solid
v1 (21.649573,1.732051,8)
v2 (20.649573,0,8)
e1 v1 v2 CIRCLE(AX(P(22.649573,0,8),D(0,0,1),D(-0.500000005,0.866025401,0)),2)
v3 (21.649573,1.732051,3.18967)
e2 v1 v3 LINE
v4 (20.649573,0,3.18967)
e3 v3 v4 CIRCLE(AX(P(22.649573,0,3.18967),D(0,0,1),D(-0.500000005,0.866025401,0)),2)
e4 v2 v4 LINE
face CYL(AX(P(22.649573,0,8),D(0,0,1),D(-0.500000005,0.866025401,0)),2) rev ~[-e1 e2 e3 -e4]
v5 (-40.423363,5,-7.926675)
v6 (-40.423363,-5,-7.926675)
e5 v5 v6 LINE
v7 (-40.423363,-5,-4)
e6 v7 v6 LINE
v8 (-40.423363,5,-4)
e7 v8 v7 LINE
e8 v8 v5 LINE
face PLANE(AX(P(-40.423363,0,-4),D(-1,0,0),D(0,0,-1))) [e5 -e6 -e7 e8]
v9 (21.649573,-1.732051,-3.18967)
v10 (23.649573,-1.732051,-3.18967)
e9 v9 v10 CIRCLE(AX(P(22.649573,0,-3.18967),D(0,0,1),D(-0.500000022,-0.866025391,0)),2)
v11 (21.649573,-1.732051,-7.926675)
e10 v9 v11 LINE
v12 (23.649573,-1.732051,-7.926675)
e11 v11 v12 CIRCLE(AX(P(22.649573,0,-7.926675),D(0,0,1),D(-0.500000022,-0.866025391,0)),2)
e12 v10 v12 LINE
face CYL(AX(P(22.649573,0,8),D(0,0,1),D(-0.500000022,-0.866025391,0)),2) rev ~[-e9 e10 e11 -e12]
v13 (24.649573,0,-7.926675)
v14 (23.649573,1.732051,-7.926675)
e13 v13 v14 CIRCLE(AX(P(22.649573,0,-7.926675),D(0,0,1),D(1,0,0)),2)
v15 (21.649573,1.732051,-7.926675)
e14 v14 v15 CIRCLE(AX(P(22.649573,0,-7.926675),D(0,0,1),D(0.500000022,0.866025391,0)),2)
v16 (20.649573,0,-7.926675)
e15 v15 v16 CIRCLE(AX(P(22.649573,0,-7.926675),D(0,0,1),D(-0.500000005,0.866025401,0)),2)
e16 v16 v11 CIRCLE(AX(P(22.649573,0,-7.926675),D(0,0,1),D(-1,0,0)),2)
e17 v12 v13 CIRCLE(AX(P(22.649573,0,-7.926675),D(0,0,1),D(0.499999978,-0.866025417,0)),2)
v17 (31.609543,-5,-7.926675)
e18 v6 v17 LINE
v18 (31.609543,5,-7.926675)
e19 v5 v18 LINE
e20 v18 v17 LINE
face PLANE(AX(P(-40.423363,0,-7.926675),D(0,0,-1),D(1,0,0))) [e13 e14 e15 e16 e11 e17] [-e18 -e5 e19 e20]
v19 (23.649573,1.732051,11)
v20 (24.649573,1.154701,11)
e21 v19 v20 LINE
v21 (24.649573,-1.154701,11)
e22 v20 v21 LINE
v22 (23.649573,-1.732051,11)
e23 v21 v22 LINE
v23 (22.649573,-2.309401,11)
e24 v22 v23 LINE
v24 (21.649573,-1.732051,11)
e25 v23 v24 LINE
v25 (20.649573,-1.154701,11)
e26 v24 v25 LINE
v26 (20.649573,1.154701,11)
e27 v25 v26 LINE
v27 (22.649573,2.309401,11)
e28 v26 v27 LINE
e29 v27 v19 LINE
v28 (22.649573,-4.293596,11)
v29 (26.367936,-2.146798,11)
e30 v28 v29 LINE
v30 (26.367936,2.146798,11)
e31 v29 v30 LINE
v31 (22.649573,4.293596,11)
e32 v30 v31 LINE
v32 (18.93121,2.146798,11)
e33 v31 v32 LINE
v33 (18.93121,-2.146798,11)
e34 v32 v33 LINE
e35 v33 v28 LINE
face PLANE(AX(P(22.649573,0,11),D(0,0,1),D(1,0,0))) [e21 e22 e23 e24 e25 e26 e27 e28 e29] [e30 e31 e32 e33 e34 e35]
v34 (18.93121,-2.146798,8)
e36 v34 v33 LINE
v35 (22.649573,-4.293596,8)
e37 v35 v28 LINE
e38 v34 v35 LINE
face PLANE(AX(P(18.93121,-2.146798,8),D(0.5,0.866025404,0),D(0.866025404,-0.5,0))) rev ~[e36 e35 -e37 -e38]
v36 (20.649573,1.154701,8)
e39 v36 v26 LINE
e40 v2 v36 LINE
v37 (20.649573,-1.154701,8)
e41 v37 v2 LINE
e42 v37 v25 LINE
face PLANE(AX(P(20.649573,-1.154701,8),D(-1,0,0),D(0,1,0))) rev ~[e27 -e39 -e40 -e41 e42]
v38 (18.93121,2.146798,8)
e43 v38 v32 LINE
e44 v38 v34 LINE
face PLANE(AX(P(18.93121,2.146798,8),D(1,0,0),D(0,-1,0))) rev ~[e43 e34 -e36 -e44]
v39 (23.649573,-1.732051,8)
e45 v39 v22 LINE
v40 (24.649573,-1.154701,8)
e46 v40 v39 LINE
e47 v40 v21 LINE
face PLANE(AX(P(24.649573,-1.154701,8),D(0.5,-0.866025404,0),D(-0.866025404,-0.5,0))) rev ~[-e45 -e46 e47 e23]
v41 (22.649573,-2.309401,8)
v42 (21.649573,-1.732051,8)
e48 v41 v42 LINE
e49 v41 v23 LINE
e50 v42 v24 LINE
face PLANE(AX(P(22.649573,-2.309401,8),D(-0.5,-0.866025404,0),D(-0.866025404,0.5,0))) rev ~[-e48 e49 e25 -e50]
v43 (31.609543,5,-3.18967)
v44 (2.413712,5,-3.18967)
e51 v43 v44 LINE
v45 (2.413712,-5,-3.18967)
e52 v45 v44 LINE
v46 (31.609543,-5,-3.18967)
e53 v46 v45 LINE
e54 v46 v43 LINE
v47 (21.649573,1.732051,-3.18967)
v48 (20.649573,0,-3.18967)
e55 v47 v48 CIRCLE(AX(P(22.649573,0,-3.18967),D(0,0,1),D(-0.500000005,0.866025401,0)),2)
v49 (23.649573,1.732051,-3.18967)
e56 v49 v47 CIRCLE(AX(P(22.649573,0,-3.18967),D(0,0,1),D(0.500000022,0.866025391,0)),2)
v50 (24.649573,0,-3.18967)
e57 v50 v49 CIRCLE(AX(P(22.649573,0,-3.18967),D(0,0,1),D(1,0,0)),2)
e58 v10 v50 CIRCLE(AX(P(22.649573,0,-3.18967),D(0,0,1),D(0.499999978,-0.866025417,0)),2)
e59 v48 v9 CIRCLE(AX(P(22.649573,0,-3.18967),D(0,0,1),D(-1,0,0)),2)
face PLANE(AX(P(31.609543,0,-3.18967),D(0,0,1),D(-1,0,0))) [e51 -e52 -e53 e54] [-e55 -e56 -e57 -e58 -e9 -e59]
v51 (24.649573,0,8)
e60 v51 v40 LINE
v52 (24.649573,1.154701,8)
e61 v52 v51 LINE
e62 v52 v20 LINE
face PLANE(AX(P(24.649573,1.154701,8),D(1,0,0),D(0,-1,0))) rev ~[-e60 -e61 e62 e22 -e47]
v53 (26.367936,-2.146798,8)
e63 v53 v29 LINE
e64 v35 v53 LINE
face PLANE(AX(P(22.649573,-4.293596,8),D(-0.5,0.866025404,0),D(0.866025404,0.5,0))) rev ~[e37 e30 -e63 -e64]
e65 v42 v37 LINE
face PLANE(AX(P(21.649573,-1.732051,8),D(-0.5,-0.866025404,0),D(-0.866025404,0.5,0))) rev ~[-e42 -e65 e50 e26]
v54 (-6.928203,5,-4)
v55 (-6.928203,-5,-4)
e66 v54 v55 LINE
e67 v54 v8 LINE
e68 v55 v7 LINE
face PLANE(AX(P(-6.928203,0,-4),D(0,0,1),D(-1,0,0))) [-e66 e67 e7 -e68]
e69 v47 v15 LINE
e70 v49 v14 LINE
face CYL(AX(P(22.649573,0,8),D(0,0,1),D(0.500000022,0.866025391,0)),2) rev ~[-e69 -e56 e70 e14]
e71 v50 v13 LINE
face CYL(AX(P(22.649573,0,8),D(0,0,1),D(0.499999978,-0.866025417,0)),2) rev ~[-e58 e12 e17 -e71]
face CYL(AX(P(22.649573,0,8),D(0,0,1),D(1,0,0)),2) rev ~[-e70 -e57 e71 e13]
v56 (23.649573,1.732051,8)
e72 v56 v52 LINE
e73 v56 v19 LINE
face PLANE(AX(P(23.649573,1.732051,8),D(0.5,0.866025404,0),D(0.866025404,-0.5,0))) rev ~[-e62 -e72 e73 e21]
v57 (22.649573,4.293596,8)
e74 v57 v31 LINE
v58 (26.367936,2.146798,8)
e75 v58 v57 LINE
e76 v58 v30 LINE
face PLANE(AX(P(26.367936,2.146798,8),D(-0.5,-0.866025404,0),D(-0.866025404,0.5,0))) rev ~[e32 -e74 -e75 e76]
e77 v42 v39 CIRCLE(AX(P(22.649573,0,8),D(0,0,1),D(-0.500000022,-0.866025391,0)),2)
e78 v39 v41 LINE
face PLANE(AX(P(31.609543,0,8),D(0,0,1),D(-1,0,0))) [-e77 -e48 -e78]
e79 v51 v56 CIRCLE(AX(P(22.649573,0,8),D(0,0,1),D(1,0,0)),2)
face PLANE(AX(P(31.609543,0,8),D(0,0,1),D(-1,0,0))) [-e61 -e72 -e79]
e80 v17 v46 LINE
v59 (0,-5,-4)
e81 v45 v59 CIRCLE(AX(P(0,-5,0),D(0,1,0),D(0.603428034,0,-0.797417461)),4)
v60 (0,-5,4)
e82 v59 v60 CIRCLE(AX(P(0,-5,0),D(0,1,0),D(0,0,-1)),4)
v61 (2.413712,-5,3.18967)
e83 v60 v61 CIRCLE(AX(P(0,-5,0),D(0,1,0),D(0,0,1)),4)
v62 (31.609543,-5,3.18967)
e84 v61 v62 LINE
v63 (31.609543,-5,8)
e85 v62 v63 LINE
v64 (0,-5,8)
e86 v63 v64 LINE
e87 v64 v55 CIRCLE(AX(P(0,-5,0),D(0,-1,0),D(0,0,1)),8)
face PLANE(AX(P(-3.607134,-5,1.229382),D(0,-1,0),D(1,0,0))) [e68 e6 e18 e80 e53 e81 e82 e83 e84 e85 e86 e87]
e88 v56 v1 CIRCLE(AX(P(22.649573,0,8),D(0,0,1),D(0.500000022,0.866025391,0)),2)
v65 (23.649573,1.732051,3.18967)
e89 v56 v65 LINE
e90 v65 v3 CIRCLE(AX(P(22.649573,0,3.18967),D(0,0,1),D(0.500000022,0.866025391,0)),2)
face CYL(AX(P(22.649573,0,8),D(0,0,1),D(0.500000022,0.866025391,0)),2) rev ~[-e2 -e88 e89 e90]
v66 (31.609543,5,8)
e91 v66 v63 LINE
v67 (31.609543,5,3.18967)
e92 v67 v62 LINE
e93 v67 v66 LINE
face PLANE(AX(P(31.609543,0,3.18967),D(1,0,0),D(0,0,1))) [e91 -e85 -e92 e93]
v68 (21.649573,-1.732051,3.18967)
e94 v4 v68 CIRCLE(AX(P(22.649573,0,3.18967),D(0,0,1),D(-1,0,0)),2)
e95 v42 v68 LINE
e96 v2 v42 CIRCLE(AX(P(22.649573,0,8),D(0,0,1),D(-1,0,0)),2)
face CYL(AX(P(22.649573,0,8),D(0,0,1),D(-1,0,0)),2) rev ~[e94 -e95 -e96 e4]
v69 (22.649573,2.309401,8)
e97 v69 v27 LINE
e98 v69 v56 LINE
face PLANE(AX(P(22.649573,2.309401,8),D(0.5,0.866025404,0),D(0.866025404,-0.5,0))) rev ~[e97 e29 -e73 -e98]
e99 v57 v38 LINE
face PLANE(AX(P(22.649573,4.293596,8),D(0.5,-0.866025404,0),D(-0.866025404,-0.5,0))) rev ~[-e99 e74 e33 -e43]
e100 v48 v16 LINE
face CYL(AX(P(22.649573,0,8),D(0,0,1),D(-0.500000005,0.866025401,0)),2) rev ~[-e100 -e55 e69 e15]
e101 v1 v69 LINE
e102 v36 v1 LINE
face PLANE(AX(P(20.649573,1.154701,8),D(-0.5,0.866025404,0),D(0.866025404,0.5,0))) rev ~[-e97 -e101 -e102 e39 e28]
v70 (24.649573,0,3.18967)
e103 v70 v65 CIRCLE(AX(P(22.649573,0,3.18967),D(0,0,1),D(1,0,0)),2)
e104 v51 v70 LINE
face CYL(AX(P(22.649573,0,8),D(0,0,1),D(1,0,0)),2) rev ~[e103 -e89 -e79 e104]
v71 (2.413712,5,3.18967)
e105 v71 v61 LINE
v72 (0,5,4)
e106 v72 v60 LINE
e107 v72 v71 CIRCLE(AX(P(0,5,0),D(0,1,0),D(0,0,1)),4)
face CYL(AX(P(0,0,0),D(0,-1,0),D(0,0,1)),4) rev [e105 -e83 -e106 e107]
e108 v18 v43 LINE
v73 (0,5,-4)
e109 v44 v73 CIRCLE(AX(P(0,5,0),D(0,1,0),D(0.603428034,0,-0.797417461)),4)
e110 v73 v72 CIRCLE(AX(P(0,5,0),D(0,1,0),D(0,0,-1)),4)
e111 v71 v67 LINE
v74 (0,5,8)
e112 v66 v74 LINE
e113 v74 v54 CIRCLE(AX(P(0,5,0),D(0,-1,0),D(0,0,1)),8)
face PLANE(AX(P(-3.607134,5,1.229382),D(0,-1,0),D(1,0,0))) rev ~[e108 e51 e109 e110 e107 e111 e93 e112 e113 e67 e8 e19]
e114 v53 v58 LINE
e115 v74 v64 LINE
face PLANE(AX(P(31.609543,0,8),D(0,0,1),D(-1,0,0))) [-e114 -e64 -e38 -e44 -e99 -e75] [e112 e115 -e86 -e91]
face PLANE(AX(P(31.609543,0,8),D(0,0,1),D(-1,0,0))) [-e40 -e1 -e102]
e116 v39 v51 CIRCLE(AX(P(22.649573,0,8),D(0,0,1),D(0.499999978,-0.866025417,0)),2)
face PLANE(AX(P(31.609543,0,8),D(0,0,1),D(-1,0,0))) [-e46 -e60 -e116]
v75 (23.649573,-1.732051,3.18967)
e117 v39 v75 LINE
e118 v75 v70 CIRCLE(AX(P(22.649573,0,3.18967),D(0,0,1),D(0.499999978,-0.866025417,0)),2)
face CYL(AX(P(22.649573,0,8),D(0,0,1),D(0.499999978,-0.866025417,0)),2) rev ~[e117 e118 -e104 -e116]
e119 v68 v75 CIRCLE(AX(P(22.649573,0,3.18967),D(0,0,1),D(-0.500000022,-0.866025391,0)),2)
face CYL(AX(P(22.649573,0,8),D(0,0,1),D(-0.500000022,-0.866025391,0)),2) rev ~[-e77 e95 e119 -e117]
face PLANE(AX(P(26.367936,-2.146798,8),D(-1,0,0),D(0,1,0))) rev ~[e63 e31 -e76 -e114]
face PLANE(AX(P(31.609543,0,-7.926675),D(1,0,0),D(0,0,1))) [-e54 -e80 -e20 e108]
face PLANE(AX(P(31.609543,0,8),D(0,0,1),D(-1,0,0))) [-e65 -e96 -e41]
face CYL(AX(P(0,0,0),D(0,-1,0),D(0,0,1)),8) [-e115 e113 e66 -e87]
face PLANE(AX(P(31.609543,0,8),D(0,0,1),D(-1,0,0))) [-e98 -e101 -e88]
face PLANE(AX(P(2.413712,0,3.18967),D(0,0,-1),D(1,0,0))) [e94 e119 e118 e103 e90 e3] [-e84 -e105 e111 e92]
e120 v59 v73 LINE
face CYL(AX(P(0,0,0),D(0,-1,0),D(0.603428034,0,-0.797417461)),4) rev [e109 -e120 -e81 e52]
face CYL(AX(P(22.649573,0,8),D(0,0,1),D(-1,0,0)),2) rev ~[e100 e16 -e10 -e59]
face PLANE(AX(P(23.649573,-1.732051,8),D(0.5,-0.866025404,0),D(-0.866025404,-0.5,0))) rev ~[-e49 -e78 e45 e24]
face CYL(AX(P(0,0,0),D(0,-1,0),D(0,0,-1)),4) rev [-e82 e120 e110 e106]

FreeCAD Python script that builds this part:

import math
import FreeCAD as App
import Part
import Sketcher
Q = App.Units.Quantity

doc = App.newDocument("Part")
body = doc.addObject("PartDesign::Body", "Body")

sketch1 = body.newObject("Sketcher::SketchObject", "Sketch")
sketch1.AttachmentSupport = (doc.getObject("XZ_Plane"), [""])
sketch1.MapMode = "FlatFace"
sketch1.addGeometry(Part.ArcOfCircle(Part.Circle(App.Vector(0, 0, 0), App.Vector(0, 0, 1), 4), math.radians(90), math.radians(270)), False)
sketch1.addGeometry(Part.ArcOfCircle(Part.Circle(App.Vector(0, 0, 0), App.Vector(0, 0, 1), 4), math.radians(53), math.radians(90)), False)
sketch1.addGeometry(Part.LineSegment(App.Vector(2.4, 3.2, 0), App.Vector(31.6, 3.2, 0)), False)
sketch1.addGeometry(Part.LineSegment(App.Vector(31.6, 3.2, 0), App.Vector(31.6, 8, 0)), False)
sketch1.addGeometry(Part.LineSegment(App.Vector(31.6, 8, 0), App.Vector(0, 8, 0)), False)
sketch1.addGeometry(Part.ArcOfCircle(Part.Circle(App.Vector(0, 0, 0), App.Vector(0, 0, 1), 8), math.radians(90), math.radians(210)), False)
sketch1.addGeometry(Part.LineSegment(App.Vector(-6.9, -4, 0), App.Vector(-40.4, -4, 0)), False)
sketch1.addGeometry(Part.LineSegment(App.Vector(-40.4, -4, 0), App.Vector(-40.4, -7.9, 0)), False)
sketch1.addGeometry(Part.LineSegment(App.Vector(-40.4, -7.9, 0), App.Vector(31.6, -7.9, 0)), False)
sketch1.addGeometry(Part.LineSegment(App.Vector(31.6, -7.9, 0), App.Vector(31.6, -3.2, 0)), False)
sketch1.addGeometry(Part.LineSegment(App.Vector(31.6, -3.2, 0), App.Vector(2.4, -3.2, 0)), False)
sketch1.addGeometry(Part.ArcOfCircle(Part.Circle(App.Vector(0, 0, 0), App.Vector(0, 0, 1), 4), math.radians(-90), math.radians(-53)), False)
sketch1.addConstraint(Sketcher.Constraint("Tangent", 0, 1, 1, 2))
sketch1.addConstraint(Sketcher.Constraint("Coincident", 1, 1, 2, 1))
sketch1.addConstraint(Sketcher.Constraint("Coincident", 2, 2, 3, 1))
sketch1.addConstraint(Sketcher.Constraint("Coincident", 3, 2, 4, 1))
sketch1.addConstraint(Sketcher.Constraint("Tangent", 4, 2, 5, 1))
sketch1.addConstraint(Sketcher.Constraint("Coincident", 5, 2, 6, 1))
sketch1.addConstraint(Sketcher.Constraint("Coincident", 6, 2, 7, 1))
sketch1.addConstraint(Sketcher.Constraint("Coincident", 7, 2, 8, 1))
sketch1.addConstraint(Sketcher.Constraint("Coincident", 8, 2, 9, 1))
sketch1.addConstraint(Sketcher.Constraint("Coincident", 9, 2, 10, 1))
sketch1.addConstraint(Sketcher.Constraint("Coincident", 10, 2, 11, 2))
sketch1.addConstraint(Sketcher.Constraint("Tangent", 11, 1, 0, 2))
sketch1.addConstraint(Sketcher.Constraint("Horizontal", 2))
sketch1.addConstraint(Sketcher.Constraint("Vertical", 3))
sketch1.addConstraint(Sketcher.Constraint("Horizontal", 4))
sketch1.addConstraint(Sketcher.Constraint("Horizontal", 6))
sketch1.addConstraint(Sketcher.Constraint("Vertical", 7))
sketch1.addConstraint(Sketcher.Constraint("Horizontal", 8))
sketch1.addConstraint(Sketcher.Constraint("Vertical", 9))
sketch1.addConstraint(Sketcher.Constraint("Horizontal", 10))
sketch1.addConstraint(Sketcher.Constraint("Coincident", 0, 3, -1, 1))
sketch1.addConstraint(Sketcher.Constraint("Coincident", 5, 3, -1, 1))
sketch1.addConstraint(Sketcher.Constraint("Equal", 0, 1))
sketch1.addConstraint(Sketcher.Constraint("Equal", 1, 11))
sketch1.addConstraint(Sketcher.Constraint("Symmetric", 2, 2, 9, 2, -1))
sketch1.addConstraint(Sketcher.Constraint("PointOnObject", 0, 1, -2))
sketch1.addConstraint(Sketcher.Constraint("PointOnObject", 11, 1, -2))
sketch1.addConstraint(Sketcher.Constraint("Horizontal", 6, 2, 11, 1))
sketch1.addConstraint(Sketcher.Constraint("Radius", 0, 4.0))
sketch1.addConstraint(Sketcher.Constraint("Radius", 5, 8.0))
sketch1.addConstraint(Sketcher.Constraint("DistanceX", 2, 1, 2, 2, 29.195831))
sketch1.addConstraint(Sketcher.Constraint("DistanceX", 6, 2, 6, 1, 33.49516))
sketch1.addConstraint(Sketcher.Constraint("DistanceY", 3, 1, 3, 2, 4.81033))
sketch1.addConstraint(Sketcher.Constraint("DistanceY", 7, 2, 7, 1, 3.926675))
pad1 = body.newObject("PartDesign::Pad", "Pad")
pad1.Profile = sketch1
pad1.Length = 10
pad1.Midplane = True

sketch2 = body.newObject("Sketcher::SketchObject", "Sketch001")
sketch2.AttachmentSupport = (doc.getObject("XY_Plane"), [""])
sketch2.MapMode = "FlatFace"
sketch2.AttachmentOffset = App.Placement(App.Vector(0, 0, 8), App.Rotation())
sketch2.addGeometry(Part.LineSegment(App.Vector(26.4, -2.1, 0), App.Vector(26.4, 2.1, 0)), False)
sketch2.addGeometry(Part.LineSegment(App.Vector(26.4, 2.1, 0), App.Vector(22.6, 4.3, 0)), False)
sketch2.addGeometry(Part.LineSegment(App.Vector(22.6, 4.3, 0), App.Vector(18.9, 2.1, 0)), False)
sketch2.addGeometry(Part.LineSegment(App.Vector(18.9, 2.1, 0), App.Vector(18.9, -2.1, 0)), False)
sketch2.addGeometry(Part.LineSegment(App.Vector(18.9, -2.1, 0), App.Vector(22.6, -4.3, 0)), False)
sketch2.addGeometry(Part.LineSegment(App.Vector(22.6, -4.3, 0), App.Vector(26.4, -2.1, 0)), False)
sketch2.addGeometry(Part.LineSegment(App.Vector(22.6, 2.3, 0), App.Vector(23.6, 1.7, 0)), False)
sketch2.addGeometry(Part.LineSegment(App.Vector(23.6, 1.7, 0), App.Vector(24.6, 1.2, 0)), False)
sketch2.addGeometry(Part.LineSegment(App.Vector(24.6, 1.2, 0), App.Vector(24.6, -1.2, 0)), False)
sketch2.addGeometry(Part.LineSegment(App.Vector(24.6, -1.2, 0), App.Vector(23.6, -1.7, 0)), False)
sketch2.addGeometry(Part.LineSegment(App.Vector(23.6, -1.7, 0), App.Vector(22.6, -2.3, 0)), False)
sketch2.addGeometry(Part.LineSegment(App.Vector(22.6, -2.3, 0), App.Vector(21.6, -1.7, 0)), False)
sketch2.addGeometry(Part.LineSegment(App.Vector(21.6, -1.7, 0), App.Vector(20.6, -1.2, 0)), False)
sketch2.addGeometry(Part.LineSegment(App.Vector(20.6, -1.2, 0), App.Vector(20.6, 1.2, 0)), False)
sketch2.addGeometry(Part.LineSegment(App.Vector(20.6, 1.2, 0), App.Vector(22.6, 2.3, 0)), False)
sketch2.addConstraint(Sketcher.Constraint("Coincident", 0, 2, 1, 1))
sketch2.addConstraint(Sketcher.Constraint("Coincident", 1, 2, 2, 1))
sketch2.addConstraint(Sketcher.Constraint("Coincident", 2, 2, 3, 1))
sketch2.addConstraint(Sketcher.Constraint("Coincident", 3, 2, 4, 1))
sketch2.addConstraint(Sketcher.Constraint("Coincident", 4, 2, 5, 1))
sketch2.addConstraint(Sketcher.Constraint("Coincident", 5, 2, 0, 1))
sketch2.addConstraint(Sketcher.Constraint("Coincident", 6, 2, 7, 1))
sketch2.addConstraint(Sketcher.Constraint("Coincident", 7, 2, 8, 1))
sketch2.addConstraint(Sketcher.Constraint("Coincident", 8, 2, 9, 1))
sketch2.addConstraint(Sketcher.Constraint("Coincident", 9, 2, 10, 1))
sketch2.addConstraint(Sketcher.Constraint("Coincident", 10, 2, 11, 1))
sketch2.addConstraint(Sketcher.Constraint("Coincident", 11, 2, 12, 1))
sketch2.addConstraint(Sketcher.Constraint("Coincident", 12, 2, 13, 1))
sketch2.addConstraint(Sketcher.Constraint("Coincident", 13, 2, 14, 1))
sketch2.addConstraint(Sketcher.Constraint("Coincident", 14, 2, 6, 1))
sketch2.addConstraint(Sketcher.Constraint("Vertical", 0))
sketch2.addConstraint(Sketcher.Constraint("Vertical", 3))
sketch2.addConstraint(Sketcher.Constraint("Vertical", 8))
sketch2.addConstraint(Sketcher.Constraint("Vertical", 13))
sketch2.addConstraint(Sketcher.Constraint("Symmetric", 1, 2, 4, 2, -1))
sketch2.addConstraint(Sketcher.Constraint("Symmetric", 6, 2, 9, 2, -1))
sketch2.addConstraint(Sketcher.Constraint("Symmetric", 10, 2, 14, 2, -1))
sketch2.addConstraint(Sketcher.Constraint("Parallel", 1, 4))
sketch2.addConstraint(Sketcher.Constraint("Parallel", 2, 5))
sketch2.addConstraint(Sketcher.Constraint("Parallel", 4, 6))
sketch2.addConstraint(Sketcher.Constraint("Parallel", 6, 7))
sketch2.addConstraint(Sketcher.Constraint("Parallel", 5, 9))
sketch2.addConstraint(Sketcher.Constraint("Parallel", 9, 10))
sketch2.addConstraint(Sketcher.Constraint("Parallel", 7, 11))
sketch2.addConstraint(Sketcher.Constraint("Parallel", 11, 12))
sketch2.addConstraint(Sketcher.Constraint("Parallel", 10, 14))
sketch2.addConstraint(Sketcher.Constraint("Horizontal", 0, 2, 2, 2))
sketch2.addConstraint(Sketcher.Constraint("Horizontal", 9, 2, 11, 2))
sketch2.addConstraint(Sketcher.Constraint("Horizontal", 8, 2, 12, 2))
sketch2.addConstraint(Sketcher.Constraint("Vertical", 4, 2, 10, 2))
sketch2.addConstraint(Sketcher.Constraint("Equal", 6, 7))
sketch2.addConstraint(Sketcher.Constraint("Angle", 1, Q("150 deg")))
sketch2.addConstraint(Sketcher.Constraint("DistanceX", 1, 2, 6, 2, 1.0))
sketch2.addConstraint(Sketcher.Constraint("DistanceY", 8, 2, 8, 1, 2.309401))
sketch2.addConstraint(Sketcher.Constraint("DistanceY", 5, 2, 7, 2, 3.301498))
sketch2.addConstraint(Sketcher.Constraint("DistanceX", -1, 1, 2, 2, 18.93121))
sketch2.addConstraint(Sketcher.Constraint("DistanceY", 4, 2, 1, 2, 8.587192))
pad2 = body.newObject("PartDesign::Pad", "Pad001")
pad2.Profile = sketch2
pad2.Length = 3

sketch3 = body.newObject("Sketcher::SketchObject", "Sketch002")
sketch3.AttachmentSupport = (doc.getObject("XY_Plane"), [""])
sketch3.MapMode = "FlatFace"
sketch3.AttachmentOffset = App.Placement(App.Vector(0, 0, 8), App.Rotation())
sketch3.addGeometry(Part.ArcOfCircle(Part.Circle(App.Vector(22.6, 0, 0), App.Vector(0, 0, 1), 2), math.radians(-60), math.radians(0)), False)
sketch3.addGeometry(Part.ArcOfCircle(Part.Circle(App.Vector(22.6, 0, 0), App.Vector(0, 0, 1), 2), math.radians(0), math.radians(60)), False)
sketch3.addGeometry(Part.ArcOfCircle(Part.Circle(App.Vector(22.6, 0, 0), App.Vector(0, 0, 1), 2), math.radians(60), math.radians(120)), False)
sketch3.addGeometry(Part.ArcOfCircle(Part.Circle(App.Vector(22.6, 0, 0), App.Vector(0, 0, 1), 2), math.radians(120), math.radians(180)), False)
sketch3.addGeometry(Part.ArcOfCircle(Part.Circle(App.Vector(22.6, 0, 0), App.Vector(0, 0, 1), 2), math.radians(180), math.radians(240)), False)
sketch3.addGeometry(Part.ArcOfCircle(Part.Circle(App.Vector(22.6, 0, 0), App.Vector(0, 0, 1), 2), math.radians(-120), math.radians(-60)), False)
sketch3.addConstraint(Sketcher.Constraint("Tangent", 0, 2, 1, 1))
sketch3.addConstraint(Sketcher.Constraint("Tangent", 1, 2, 2, 1))
sketch3.addConstraint(Sketcher.Constraint("Tangent", 2, 2, 3, 1))
sketch3.addConstraint(Sketcher.Constraint("Tangent", 3, 2, 4, 1))
sketch3.addConstraint(Sketcher.Constraint("Tangent", 4, 2, 5, 1))
sketch3.addConstraint(Sketcher.Constraint("Tangent", 5, 2, 0, 1))
sketch3.addConstraint(Sketcher.Constraint("Coincident", 2, 3, 0, 3))
sketch3.addConstraint(Sketcher.Constraint("Equal", 2, 3))
sketch3.addConstraint(Sketcher.Constraint("Symmetric", 2, 2, 4, 2, -1))
sketch3.addConstraint(Sketcher.Constraint("PointOnObject", 0, 2, -1))
sketch3.addConstraint(Sketcher.Constraint("PointOnObject", 3, 2, -1))
sketch3.addConstraint(Sketcher.Constraint("Horizontal", 1, 2, 2, 2))
sketch3.addConstraint(Sketcher.Constraint("Horizontal", 4, 2, 5, 2))
sketch3.addConstraint(Sketcher.Constraint("Radius", 0, 2.0))
sketch3.addConstraint(Sketcher.Constraint("DistanceX", 1, 2, 0, 2, 1.0))
sketch3.addConstraint(Sketcher.Constraint("DistanceX", -1, 1, 0, 3, 22.649573))
pocket1 = body.newObject("PartDesign::Pocket", "Pocket")
pocket1.Profile = sketch3
pocket1.Length = 16

doc.recompute()
